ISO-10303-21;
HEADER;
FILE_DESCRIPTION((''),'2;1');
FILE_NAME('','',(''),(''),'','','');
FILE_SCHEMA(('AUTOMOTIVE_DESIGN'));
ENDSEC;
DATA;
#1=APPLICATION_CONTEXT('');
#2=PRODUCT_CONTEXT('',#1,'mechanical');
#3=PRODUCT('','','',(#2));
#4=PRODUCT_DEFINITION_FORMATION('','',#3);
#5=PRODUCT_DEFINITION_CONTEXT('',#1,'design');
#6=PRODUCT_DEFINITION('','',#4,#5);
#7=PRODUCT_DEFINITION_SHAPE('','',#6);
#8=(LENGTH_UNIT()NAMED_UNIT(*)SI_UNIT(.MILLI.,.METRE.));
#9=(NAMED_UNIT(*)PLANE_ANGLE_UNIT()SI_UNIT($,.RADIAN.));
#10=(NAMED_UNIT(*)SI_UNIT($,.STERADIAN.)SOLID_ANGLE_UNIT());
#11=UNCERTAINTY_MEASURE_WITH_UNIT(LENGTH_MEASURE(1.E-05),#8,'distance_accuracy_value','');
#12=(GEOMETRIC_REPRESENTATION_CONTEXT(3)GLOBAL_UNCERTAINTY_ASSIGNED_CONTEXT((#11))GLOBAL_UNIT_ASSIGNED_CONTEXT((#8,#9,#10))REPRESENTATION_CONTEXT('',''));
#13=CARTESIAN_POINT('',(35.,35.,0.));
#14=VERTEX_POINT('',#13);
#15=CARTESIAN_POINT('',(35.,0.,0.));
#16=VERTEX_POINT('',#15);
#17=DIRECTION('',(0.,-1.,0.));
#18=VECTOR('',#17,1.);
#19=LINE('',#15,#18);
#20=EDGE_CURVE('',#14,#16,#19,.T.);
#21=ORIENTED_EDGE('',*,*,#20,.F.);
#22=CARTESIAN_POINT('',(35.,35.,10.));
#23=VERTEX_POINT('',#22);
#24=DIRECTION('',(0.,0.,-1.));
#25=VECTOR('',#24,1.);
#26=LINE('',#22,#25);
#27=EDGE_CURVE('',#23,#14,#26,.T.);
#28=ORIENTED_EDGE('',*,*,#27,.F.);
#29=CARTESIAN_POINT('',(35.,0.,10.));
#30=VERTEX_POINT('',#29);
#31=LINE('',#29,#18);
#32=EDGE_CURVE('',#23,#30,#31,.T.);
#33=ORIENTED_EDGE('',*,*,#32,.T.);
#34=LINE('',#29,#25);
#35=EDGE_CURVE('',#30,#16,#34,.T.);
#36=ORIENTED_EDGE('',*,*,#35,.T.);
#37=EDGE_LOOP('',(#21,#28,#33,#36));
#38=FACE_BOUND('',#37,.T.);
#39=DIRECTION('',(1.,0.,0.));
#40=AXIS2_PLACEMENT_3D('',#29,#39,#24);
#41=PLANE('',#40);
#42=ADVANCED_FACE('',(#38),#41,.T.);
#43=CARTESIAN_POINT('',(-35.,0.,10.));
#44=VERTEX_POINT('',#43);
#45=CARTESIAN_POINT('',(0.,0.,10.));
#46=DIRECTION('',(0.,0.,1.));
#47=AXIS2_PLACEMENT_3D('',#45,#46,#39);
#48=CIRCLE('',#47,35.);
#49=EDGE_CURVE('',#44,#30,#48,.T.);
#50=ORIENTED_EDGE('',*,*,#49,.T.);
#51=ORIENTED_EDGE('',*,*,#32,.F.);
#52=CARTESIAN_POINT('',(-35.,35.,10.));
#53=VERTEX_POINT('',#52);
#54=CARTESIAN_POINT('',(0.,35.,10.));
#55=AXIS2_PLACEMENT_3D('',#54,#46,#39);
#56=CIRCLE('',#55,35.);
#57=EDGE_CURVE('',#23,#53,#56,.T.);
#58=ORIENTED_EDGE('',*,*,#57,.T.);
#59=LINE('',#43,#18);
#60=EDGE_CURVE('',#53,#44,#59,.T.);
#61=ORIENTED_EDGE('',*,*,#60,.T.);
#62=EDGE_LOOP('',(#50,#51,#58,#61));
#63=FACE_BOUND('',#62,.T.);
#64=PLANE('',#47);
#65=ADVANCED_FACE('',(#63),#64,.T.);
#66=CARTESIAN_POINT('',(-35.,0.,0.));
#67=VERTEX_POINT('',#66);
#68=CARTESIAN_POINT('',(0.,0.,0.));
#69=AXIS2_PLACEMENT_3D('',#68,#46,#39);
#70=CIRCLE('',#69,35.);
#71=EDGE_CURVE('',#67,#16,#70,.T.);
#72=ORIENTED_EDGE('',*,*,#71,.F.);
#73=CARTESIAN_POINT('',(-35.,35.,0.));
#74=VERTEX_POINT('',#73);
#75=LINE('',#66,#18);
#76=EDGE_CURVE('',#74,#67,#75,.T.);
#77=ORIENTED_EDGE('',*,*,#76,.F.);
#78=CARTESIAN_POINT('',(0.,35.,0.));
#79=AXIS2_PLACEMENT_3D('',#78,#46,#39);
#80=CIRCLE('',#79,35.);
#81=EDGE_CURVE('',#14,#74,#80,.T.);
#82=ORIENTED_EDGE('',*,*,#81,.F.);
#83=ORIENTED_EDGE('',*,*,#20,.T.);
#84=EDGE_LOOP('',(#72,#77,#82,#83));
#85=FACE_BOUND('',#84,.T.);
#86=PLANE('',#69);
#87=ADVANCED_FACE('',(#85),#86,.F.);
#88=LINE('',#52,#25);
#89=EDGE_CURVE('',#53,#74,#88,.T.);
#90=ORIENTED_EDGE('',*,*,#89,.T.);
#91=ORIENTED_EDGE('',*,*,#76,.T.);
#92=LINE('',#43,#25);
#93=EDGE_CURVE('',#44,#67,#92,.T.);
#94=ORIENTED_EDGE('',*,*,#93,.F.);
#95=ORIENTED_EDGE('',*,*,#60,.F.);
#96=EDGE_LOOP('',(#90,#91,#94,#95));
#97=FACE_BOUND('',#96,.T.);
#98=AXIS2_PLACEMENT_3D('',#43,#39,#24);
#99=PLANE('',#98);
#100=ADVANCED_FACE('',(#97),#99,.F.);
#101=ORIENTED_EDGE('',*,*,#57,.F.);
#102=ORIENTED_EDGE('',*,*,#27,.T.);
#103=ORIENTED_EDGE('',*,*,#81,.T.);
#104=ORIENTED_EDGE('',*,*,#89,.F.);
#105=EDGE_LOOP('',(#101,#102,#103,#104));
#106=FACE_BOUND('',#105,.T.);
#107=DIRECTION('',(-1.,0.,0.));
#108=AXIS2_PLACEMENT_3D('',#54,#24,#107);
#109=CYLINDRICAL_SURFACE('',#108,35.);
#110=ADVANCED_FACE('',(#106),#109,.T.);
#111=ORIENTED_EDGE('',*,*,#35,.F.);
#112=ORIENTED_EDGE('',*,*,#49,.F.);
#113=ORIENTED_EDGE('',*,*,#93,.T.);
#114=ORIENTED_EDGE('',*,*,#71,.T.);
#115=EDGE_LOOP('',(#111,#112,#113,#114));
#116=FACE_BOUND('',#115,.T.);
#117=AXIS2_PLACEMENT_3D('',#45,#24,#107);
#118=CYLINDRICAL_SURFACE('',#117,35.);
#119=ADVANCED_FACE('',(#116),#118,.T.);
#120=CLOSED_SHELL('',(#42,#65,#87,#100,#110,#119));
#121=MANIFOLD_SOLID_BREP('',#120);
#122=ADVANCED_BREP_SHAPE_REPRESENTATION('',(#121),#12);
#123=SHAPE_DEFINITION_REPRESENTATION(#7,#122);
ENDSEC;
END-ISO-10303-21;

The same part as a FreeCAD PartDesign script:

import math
import FreeCAD as App
import Part
import Sketcher

V = App.Vector
Q = App.Units.Quantity

doc = App.newDocument("Part")
body = doc.addObject("PartDesign::Body", "Body")

sketch1 = doc.addObject("Sketcher::SketchObject", "Sketch")
body.addObject(sketch1)
sketch1.AttachmentSupport = (doc.XY_Plane, [""])
sketch1.MapMode = "FlatFace"
sketch1.addGeometry(Part.ArcOfCircle(Part.Circle(V(0, 35, 0), V(0, 0, 1), 35), math.radians(0), math.radians(180)), False)
sketch1.addGeometry(Part.LineSegment(V(-35, 35, 0), V(-35, 0, 0)), False)
sketch1.addGeometry(Part.ArcOfCircle(Part.Circle(V(0, 0, 0), V(0, 0, 1), 35), math.radians(180), math.radians(360)), False)
sketch1.addGeometry(Part.LineSegment(V(35, 0, 0), V(35, 35, 0)), False)
sketch1.addConstraint(Sketcher.Constraint("Tangent", 0, 2, 1, 1))
sketch1.addConstraint(Sketcher.Constraint("Tangent", 1, 2, 2, 1))
sketch1.addConstraint(Sketcher.Constraint("Tangent", 2, 2, 3, 1))
sketch1.addConstraint(Sketcher.Constraint("Tangent", 3, 2, 0, 1))
sketch1.addConstraint(Sketcher.Constraint("Vertical", 1))
sketch1.addConstraint(Sketcher.Constraint("Vertical", 3))
sketch1.addConstraint(Sketcher.Constraint("Coincident", 2, 3, -1, 1))
sketch1.addConstraint(Sketcher.Constraint("Radius", 0, Q("35 mm")))
sketch1.addConstraint(Sketcher.Constraint("DistanceY", 1, 2, 1, 1, Q("35 mm")))
pad1 = doc.addObject("PartDesign::Pad", "Pad")
body.addObject(pad1)
pad1.Profile = sketch1
pad1.Length = 10

doc.recompute()
